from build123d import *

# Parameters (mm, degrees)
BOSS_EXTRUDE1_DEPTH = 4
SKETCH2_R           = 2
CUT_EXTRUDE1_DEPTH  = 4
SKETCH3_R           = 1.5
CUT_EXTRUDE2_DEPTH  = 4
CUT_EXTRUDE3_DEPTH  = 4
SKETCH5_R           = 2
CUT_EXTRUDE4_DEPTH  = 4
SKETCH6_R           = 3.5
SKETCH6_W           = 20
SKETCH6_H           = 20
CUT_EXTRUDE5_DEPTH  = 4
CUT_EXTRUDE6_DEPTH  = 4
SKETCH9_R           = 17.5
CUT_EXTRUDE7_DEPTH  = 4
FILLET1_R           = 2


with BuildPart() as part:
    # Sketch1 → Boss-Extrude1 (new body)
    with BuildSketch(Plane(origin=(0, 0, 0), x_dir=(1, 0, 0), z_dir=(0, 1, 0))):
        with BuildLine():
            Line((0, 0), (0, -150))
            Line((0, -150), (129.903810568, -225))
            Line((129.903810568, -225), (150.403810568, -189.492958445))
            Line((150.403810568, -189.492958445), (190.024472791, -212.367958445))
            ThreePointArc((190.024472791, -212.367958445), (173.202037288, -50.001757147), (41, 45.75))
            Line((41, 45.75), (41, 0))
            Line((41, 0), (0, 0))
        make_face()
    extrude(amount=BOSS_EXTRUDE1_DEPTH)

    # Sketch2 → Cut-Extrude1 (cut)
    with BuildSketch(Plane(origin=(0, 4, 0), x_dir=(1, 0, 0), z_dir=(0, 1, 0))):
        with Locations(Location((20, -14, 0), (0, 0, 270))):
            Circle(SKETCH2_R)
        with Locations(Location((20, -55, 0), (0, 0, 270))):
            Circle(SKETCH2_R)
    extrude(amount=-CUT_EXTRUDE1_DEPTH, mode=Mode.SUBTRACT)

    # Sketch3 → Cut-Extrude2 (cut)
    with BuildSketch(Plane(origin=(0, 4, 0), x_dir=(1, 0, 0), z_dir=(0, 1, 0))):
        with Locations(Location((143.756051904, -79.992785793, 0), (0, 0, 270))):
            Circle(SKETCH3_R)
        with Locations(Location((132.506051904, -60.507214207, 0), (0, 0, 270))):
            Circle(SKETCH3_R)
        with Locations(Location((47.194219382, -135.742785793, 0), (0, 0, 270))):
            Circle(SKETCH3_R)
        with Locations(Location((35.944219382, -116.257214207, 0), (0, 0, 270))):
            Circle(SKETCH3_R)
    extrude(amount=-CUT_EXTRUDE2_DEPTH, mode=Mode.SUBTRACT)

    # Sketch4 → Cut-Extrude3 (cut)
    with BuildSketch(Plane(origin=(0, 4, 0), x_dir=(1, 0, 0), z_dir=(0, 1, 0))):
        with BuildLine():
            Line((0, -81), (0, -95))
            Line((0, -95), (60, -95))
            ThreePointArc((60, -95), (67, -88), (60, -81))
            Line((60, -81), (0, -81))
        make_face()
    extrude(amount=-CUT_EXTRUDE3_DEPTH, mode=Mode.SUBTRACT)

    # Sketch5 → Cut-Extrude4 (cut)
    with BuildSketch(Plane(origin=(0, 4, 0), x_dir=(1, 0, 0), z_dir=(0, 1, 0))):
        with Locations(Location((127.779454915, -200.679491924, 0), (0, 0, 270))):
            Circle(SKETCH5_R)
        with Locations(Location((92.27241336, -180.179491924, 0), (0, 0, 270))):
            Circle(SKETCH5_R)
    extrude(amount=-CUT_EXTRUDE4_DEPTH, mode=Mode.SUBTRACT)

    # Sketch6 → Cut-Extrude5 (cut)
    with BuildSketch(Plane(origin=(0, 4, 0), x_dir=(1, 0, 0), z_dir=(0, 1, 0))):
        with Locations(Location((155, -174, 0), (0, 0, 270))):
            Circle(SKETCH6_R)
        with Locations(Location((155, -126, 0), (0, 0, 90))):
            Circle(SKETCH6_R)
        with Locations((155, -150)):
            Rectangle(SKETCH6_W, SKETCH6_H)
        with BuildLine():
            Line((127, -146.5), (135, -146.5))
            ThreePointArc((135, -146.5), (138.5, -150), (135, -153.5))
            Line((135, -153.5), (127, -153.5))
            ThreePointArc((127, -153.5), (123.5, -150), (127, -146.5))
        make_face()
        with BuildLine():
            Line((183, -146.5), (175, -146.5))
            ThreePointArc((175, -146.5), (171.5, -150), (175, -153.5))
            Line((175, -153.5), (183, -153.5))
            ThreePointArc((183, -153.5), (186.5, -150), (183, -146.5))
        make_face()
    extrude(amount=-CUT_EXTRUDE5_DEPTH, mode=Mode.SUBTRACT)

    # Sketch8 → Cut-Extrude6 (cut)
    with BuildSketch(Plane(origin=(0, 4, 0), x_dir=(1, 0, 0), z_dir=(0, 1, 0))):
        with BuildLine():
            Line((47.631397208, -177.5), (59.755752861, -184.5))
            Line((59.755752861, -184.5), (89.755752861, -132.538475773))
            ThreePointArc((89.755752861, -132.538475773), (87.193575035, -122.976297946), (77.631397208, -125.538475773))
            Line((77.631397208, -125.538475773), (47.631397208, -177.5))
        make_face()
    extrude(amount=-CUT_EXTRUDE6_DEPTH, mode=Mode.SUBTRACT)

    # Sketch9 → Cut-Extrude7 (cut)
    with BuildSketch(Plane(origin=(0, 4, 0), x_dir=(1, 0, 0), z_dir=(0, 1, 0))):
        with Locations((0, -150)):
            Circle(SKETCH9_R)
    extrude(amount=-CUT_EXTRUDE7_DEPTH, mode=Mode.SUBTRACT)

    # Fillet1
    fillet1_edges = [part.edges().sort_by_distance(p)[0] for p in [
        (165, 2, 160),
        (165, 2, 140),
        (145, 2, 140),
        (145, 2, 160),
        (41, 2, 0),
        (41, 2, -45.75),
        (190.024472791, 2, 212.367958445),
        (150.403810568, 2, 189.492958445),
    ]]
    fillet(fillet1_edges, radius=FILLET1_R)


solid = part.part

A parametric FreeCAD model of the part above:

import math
import FreeCAD as App
import Part
import Sketcher
from FreeCAD import Vector
Q = App.Units.Quantity


def edges_at(feature, points):
    """Names of the edges that pass closest to the given points."""
    edges = feature.Shape.Edges
    near = lambda p: min(range(len(edges)), key=lambda i: edges[i].distToShape(Part.Vertex(*p))[0])
    return sorted({f"Edge{near(p) + 1}" for p in points})

doc = App.newDocument("Part")
body = doc.addObject("PartDesign::Body", "Body")

# Sketch on XZ plane
sketch1 = body.newObject("Sketcher::SketchObject", "Sketch")
sketch1.AttachmentSupport = (doc.getObject("XZ_Plane"), [""])
sketch1.MapMode = "FlatFace"
sketch1.addGeometry([
    Part.LineSegment(Vector(0, 0, 0), Vector(0, 150, 0)),  # 0
    Part.LineSegment(Vector(0, 150, 0), Vector(130, 225, 0)),  # 1
    Part.LineSegment(Vector(130, 225, 0), Vector(150, 189, 0)),  # 2
    Part.LineSegment(Vector(150, 189, 0), Vector(190, 212, 0)),  # 3
    Part.ArcOfCircle(Part.Circle(Vector(0, 150, 0), Vector(0, 0, 1), 200), math.radians(-78), math.radians(18)),  # 4
    Part.LineSegment(Vector(41, -46, 0), Vector(41, 0, 0)),  # 5
    Part.LineSegment(Vector(41, 0, 0), Vector(0, 0, 0)),  # 6
], False)
sketch1.addConstraint([
    Sketcher.Constraint("Coincident", 0, 2, 1, 1),
    Sketcher.Constraint("Coincident", 1, 2, 2, 1),
    Sketcher.Constraint("Coincident", 2, 2, 3, 1),
    Sketcher.Constraint("Coincident", 3, 2, 4, 2),
    Sketcher.Constraint("Coincident", 4, 1, 5, 1),
    Sketcher.Constraint("Coincident", 5, 2, 6, 1),
    Sketcher.Constraint("Coincident", 6, 2, 0, 1),
    Sketcher.Constraint("Vertical", 0),
    Sketcher.Constraint("Vertical", 5),
    Sketcher.Constraint("Horizontal", 6),
    Sketcher.Constraint("Coincident", 6, 2, -1, 1),
    Sketcher.Constraint("Perpendicular", 1, 2),
    Sketcher.Constraint("Perpendicular", 2, 3),
    Sketcher.Constraint("Radius", 4, Q("200 mm")),
    Sketcher.Constraint("DistanceX", 6, 2, 6, 1, Q("41 mm")),
    Sketcher.Constraint("DistanceY", 0, 1, 0, 2, Q("150 mm")),
    Sketcher.Constraint("Angle", 1, Q("30 deg")),
    Sketcher.Constraint("Distance", 1, Q("150 mm")),
    Sketcher.Constraint("Distance", 2, Q("41 mm")),
    Sketcher.Constraint("DistanceY", 5, 1, 5, 2, Q("45.75 mm")),
    Sketcher.Constraint("Distance", 3, Q("45.75 mm")),
])
pad1 = body.newObject("PartDesign::Pad", "Pad")
pad1.Profile = sketch1
pad1.Length = 4
pad1.Reversed = True

# Sketch on XZ plane
sketch2 = body.newObject("Sketcher::SketchObject", "Sketch001")
sketch2.AttachmentSupport = (doc.getObject("XZ_Plane"), [""])
sketch2.MapMode = "FlatFace"
sketch2.AttachmentOffset = App.Placement(Vector(0, 0, -4), App.Rotation())
sketch2.addGeometry([
    Part.Circle(Vector(20, 14, 0), Vector(0, 0, 1), 2),
    Part.Circle(Vector(20, 55, 0), Vector(0, 0, 1), 2),
], False)
sketch2.addConstraint([
    Sketcher.Constraint("Equal", 0, 1),
    Sketcher.Constraint("Vertical", 0, 3, 1, 3),
    Sketcher.Constraint("Diameter", 0, Q("4 mm")),
    Sketcher.Constraint("DistanceX", -1, 1, 0, 3, Q("20 mm")),
    Sketcher.Constraint("DistanceY", -1, 1, 0, 3, Q("14 mm")),
    Sketcher.Constraint("DistanceY", -1, 1, 1, 3, Q("55 mm")),
])
pocket1 = body.newObject("PartDesign::Pocket", "Pocket")
pocket1.Profile = sketch2
pocket1.Length = 4
pocket1.Reversed = True

# Sketch on XZ plane
sketch3 = body.newObject("Sketcher::SketchObject", "Sketch002")
sketch3.AttachmentSupport = (doc.getObject("XZ_Plane"), [""])
sketch3.MapMode = "FlatFace"
sketch3.AttachmentOffset = App.Placement(Vector(0, 0, -4), App.Rotation())
sketch3.addGeometry([
    Part.Circle(Vector(143.8, 80, 0), Vector(0, 0, 1), 1.5),
    Part.Circle(Vector(132.5, 60.5, 0), Vector(0, 0, 1), 1.5),
    Part.Circle(Vector(47.2, 135.7, 0), Vector(0, 0, 1), 1.5),
    Part.Circle(Vector(35.9, 116.3, 0), Vector(0, 0, 1), 1.5),
], False)
sketch3.addConstraint([
    Sketcher.Constraint("Equal", 0, 1),
    Sketcher.Constraint("Equal", 1, 2),
    Sketcher.Constraint("Equal", 2, 3),
    Sketcher.Constraint("Diameter", 0, Q("3 mm")),
    Sketcher.Constraint("DistanceX", 1, 3, 0, 3, Q("11.25 mm")),
    Sketcher.Constraint("DistanceY", 0, 3, 2, 3, Q("55.75 mm")),
    Sketcher.Constraint("DistanceX", 3, 3, 2, 3, Q("11.25 mm")),
    Sketcher.Constraint("DistanceY", 1, 3, 3, 3, Q("55.75 mm")),
    Sketcher.Constraint("DistanceX", -1, 1, 0, 3, Q("143.756052 mm")),
    Sketcher.Constraint("DistanceX", -1, 1, 2, 3, Q("47.194219 mm")),
    Sketcher.Constraint("DistanceY", 1, 3, 0, 3, Q("19.485572 mm")),
    Sketcher.Constraint("DistanceY", -1, 1, 0, 3, Q("79.992786 mm")),
])
pocket2 = body.newObject("PartDesign::Pocket", "Pocket001")
pocket2.Profile = sketch3
pocket2.Length = 4
pocket2.Reversed = True

# Sketch on XZ plane
sketch4 = body.newObject("Sketcher::SketchObject", "Sketch003")
sketch4.AttachmentSupport = (doc.getObject("XZ_Plane"), [""])
sketch4.MapMode = "FlatFace"
sketch4.AttachmentOffset = App.Placement(Vector(0, 0, -4), App.Rotation())
sketch4.addGeometry([
    Part.LineSegment(Vector(0, 81, 0), Vector(0, 95, 0)),
    Part.LineSegment(Vector(0, 95, 0), Vector(60, 95, 0)),
    Part.ArcOfCircle(Part.Circle(Vector(60, 88, 0), Vector(0, 0, 1), 7), math.radians(-90), math.radians(90)),
    Part.LineSegment(Vector(60, 81, 0), Vector(0, 81, 0)),
], False)
sketch4.addConstraint([
    Sketcher.Constraint("Coincident", 0, 2, 1, 1),
    Sketcher.Constraint("Tangent", 1, 2, 2, 2),
    Sketcher.Constraint("Tangent", 2, 1, 3, 1),
    Sketcher.Constraint("Coincident", 3, 2, 0, 1),
    Sketcher.Constraint("Vertical", 0),
    Sketcher.Constraint("Horizontal", 1),
    Sketcher.Constraint("Horizontal", 3),
    Sketcher.Constraint("PointOnObject", 0, 2, -2),
    Sketcher.Constraint("Radius", 2, Q("7 mm")),
    Sketcher.Constraint("DistanceX", 1, 1, 1, 2, Q("60 mm")),
    Sketcher.Constraint("DistanceY", -1, 1, 2, 3, Q("88 mm")),
])
pocket3 = body.newObject("PartDesign::Pocket", "Pocket002")
pocket3.Profile = sketch4
pocket3.Length = 4
pocket3.Reversed = True

# Sketch on XZ plane
sketch5 = body.newObject("Sketcher::SketchObject", "Sketch004")
sketch5.AttachmentSupport = (doc.getObject("XZ_Plane"), [""])
sketch5.MapMode = "FlatFace"
sketch5.AttachmentOffset = App.Placement(Vector(0, 0, -4), App.Rotation())
sketch5.addGeometry([
    Part.Circle(Vector(127.8, 200.7, 0), Vector(0, 0, 1), 2),
    Part.Circle(Vector(92.3, 180.2, 0), Vector(0, 0, 1), 2),
], False)
sketch5.addConstraint([
    Sketcher.Constraint("Equal", 0, 1),
    Sketcher.Constraint("Diameter", 0, Q("4 mm")),
    Sketcher.Constraint("DistanceY", 1, 3, 0, 3, Q("20.5 mm")),
    Sketcher.Constraint("DistanceY", -1, 1, 0, 3, Q("200.679492 mm")),
    Sketcher.Constraint("DistanceX", 1, 3, 0, 3, Q("35.507042 mm")),
    Sketcher.Constraint("DistanceX", -1, 1, 0, 3, Q("127.779455 mm")),
])
pocket4 = body.newObject("PartDesign::Pocket", "Pocket003")
pocket4.Profile = sketch5
pocket4.Length = 4
pocket4.Reversed = True

# Sketch on XZ plane
sketch6 = body.newObject("Sketcher::SketchObject", "Sketch005")
sketch6.AttachmentSupport = (doc.getObject("XZ_Plane"), [""])
sketch6.MapMode = "FlatFace"
sketch6.AttachmentOffset = App.Placement(Vector(0, 0, -4), App.Rotation())
sketch6.addGeometry([
    Part.Circle(Vector(155, 174, 0), Vector(0, 0, 1), 3.5),  # 0
    Part.Circle(Vector(155, 126, 0), Vector(0, 0, 1), 3.5),  # 1
    Part.LineSegment(Vector(145, 140, 0), Vector(145, 160, 0)),  # 2
    Part.LineSegment(Vector(145, 160, 0), Vector(165, 160, 0)),  # 3
    Part.LineSegment(Vector(165, 160, 0), Vector(165, 140, 0)),  # 4
    Part.LineSegment(Vector(165, 140, 0), Vector(145, 140, 0)),  # 5
    Part.LineSegment(Vector(135, 146.5, 0), Vector(127, 146.5, 0)),  # 6
    Part.ArcOfCircle(Part.Circle(Vector(127, 150, 0), Vector(0, 0, 1), 3.5), math.radians(90), math.radians(270)),  # 7
    Part.LineSegment(Vector(127, 153.5, 0), Vector(135, 153.5, 0)),  # 8
    Part.ArcOfCircle(Part.Circle(Vector(135, 150, 0), Vector(0, 0, 1), 3.5), math.radians(-90), math.radians(90)),  # 9
    Part.LineSegment(Vector(183, 146.5, 0), Vector(175, 146.5, 0)),  # 10
    Part.ArcOfCircle(Part.Circle(Vector(175, 150, 0), Vector(0, 0, 1), 3.5), math.radians(90), math.radians(270)),  # 11
    Part.LineSegment(Vector(175, 153.5, 0), Vector(183, 153.5, 0)),  # 12
    Part.ArcOfCircle(Part.Circle(Vector(183, 150, 0), Vector(0, 0, 1), 3.5), math.radians(-90), math.radians(90)),  # 13
], False)
sketch6.addConstraint([
    Sketcher.Constraint("Coincident", 2, 2, 3, 1),
    Sketcher.Constraint("Coincident", 3, 2, 4, 1),
    Sketcher.Constraint("Coincident", 4, 2, 5, 1),
    Sketcher.Constraint("Coincident", 5, 2, 2, 1),
    Sketcher.Constraint("Tangent", 6, 2, 7, 2),
    Sketcher.Constraint("Tangent", 7, 1, 8, 1),
    Sketcher.Constraint("Tangent", 8, 2, 9, 2),
    Sketcher.Constraint("Tangent", 9, 1, 6, 1),
    Sketcher.Constraint("Tangent", 10, 2, 11, 2),
    Sketcher.Constraint("Tangent", 11, 1, 12, 1),
    Sketcher.Constraint("Tangent", 12, 2, 13, 2),
    Sketcher.Constraint("Tangent", 13, 1, 10, 1),
    Sketcher.Constraint("Vertical", 2),
    Sketcher.Constraint("Horizontal", 3),
    Sketcher.Constraint("Vertical", 4),
    Sketcher.Constraint("Horizontal", 5),
    Sketcher.Constraint("Horizontal", 6),
    Sketcher.Constraint("Horizontal", 8),
    Sketcher.Constraint("Horizontal", 10),
    Sketcher.Constraint("Horizontal", 12),
    Sketcher.Constraint("Equal", 0, 1),
    Sketcher.Constraint("Equal", 1, 7),
    Sketcher.Constraint("Equal", 9, 11),
    Sketcher.Constraint("Horizontal", 9, 3, 11, 3),
    Sketcher.Constraint("Vertical", 0, 3, 1, 3),
    Sketcher.Constraint("Equal", 8, 10),
    Sketcher.Constraint("Equal", 5, 2),
    Sketcher.Constraint("Diameter", 0, Q("7 mm")),
    Sketcher.Constraint("DistanceX", 3, 1, 3, 2, Q("20 mm")),
    Sketcher.Constraint("DistanceX", 6, 2, 6, 1, Q("8 mm")),
    Sketcher.Constraint("DistanceX", -1, 1, 0, 3, Q("155 mm")),
    Sketcher.Constraint("DistanceY", -1, 1, 0, 3, Q("174 mm")),
    Sketcher.Constraint("DistanceY", -1, 1, 1, 3, Q("126 mm")),
    Sketcher.Constraint("DistanceX", -1, 1, 7, 3, Q("127 mm")),
    Sketcher.Constraint("DistanceY", -1, 1, 7, 3, Q("150 mm")),
    Sketcher.Constraint("DistanceX", -1, 1, 11, 3, Q("175 mm")),
    Sketcher.Constraint("DistanceX", -1, 1, 2, 2, Q("145 mm")),
    Sketcher.Constraint("DistanceY", -1, 1, 2, 2, Q("160 mm")),
])
pocket5 = body.newObject("PartDesign::Pocket", "Pocket004")
pocket5.Profile = sketch6
pocket5.Length = 4
pocket5.Reversed = True

# Sketch on XZ plane
sketch7 = body.newObject("Sketcher::SketchObject", "Sketch006")
sketch7.AttachmentSupport = (doc.getObject("XZ_Plane"), [""])
sketch7.MapMode = "FlatFace"
sketch7.AttachmentOffset = App.Placement(Vector(0, 0, -4), App.Rotation())
sketch7.addGeometry([
    Part.LineSegment(Vector(48, 178, 0), Vector(60, 184, 0)),
    Part.LineSegment(Vector(60, 184, 0), Vector(90, 133, 0)),
    Part.ArcOfCircle(Part.Circle(Vector(84, 129, 0), Vector(0, 0, 1), 7), math.radians(-150), math.radians(30)),
    Part.LineSegment(Vector(78, 126, 0), Vector(48, 178, 0)),
], False)
sketch7.addConstraint([
    Sketcher.Constraint("Coincident", 0, 2, 1, 1),
    Sketcher.Constraint("Tangent", 1, 2, 2, 2),
    Sketcher.Constraint("Tangent", 2, 1, 3, 1),
    Sketcher.Constraint("Coincident", 3, 2, 0, 1),
    Sketcher.Constraint("Perpendicular", 0, 1),
    Sketcher.Constraint("Parallel", 1, 3),
    Sketcher.Constraint("Radius", 2, Q("7 mm")),
    Sketcher.Constraint("Angle", 0, Q("30 deg")),
    Sketcher.Constraint("Distance", 1, Q("60 mm")),
    Sketcher.Constraint("DistanceY", -1, 1, 0, 2, Q("184.5 mm")),
    Sketcher.Constraint("DistanceX", -1, 1, 2, 3, Q("83.693575 mm")),
])
pocket6 = body.newObject("PartDesign::Pocket", "Pocket005")
pocket6.Profile = sketch7
pocket6.Length = 4
pocket6.Reversed = True

# Sketch on XZ plane
sketch8 = body.newObject("Sketcher::SketchObject", "Sketch007")
sketch8.AttachmentSupport = (doc.getObject("XZ_Plane"), [""])
sketch8.MapMode = "FlatFace"
sketch8.AttachmentOffset = App.Placement(Vector(0, 0, -4), App.Rotation())
sketch8.addGeometry(Part.Circle(Vector(0, 150, 0), Vector(0, 0, 1), 18), False)
sketch8.addConstraint([
    Sketcher.Constraint("PointOnObject", 0, 3, -2),
    Sketcher.Constraint("Diameter", 0, Q("35 mm")),
    Sketcher.Constraint("DistanceY", -1, 1, 0, 3, Q("150 mm")),
])
pocket7 = body.newObject("PartDesign::Pocket", "Pocket006")
pocket7.Profile = sketch8
pocket7.Length = 4
pocket7.Reversed = True
doc.recompute()

fillet = body.newObject("PartDesign::Fillet", "Fillet")
fillet.Base = (pocket7, edges_at(pocket7, [
    (165, 2, 160),
    (165, 2, 140),
    (145, 2, 140),
    (145, 2, 160),
    (41, 2, 0),
    (41, 2, -45.75),
    (190.024, 2, 212.368),
    (150.404, 2, 189.493),
]))
fillet.Radius = 2

doc.recompute()
